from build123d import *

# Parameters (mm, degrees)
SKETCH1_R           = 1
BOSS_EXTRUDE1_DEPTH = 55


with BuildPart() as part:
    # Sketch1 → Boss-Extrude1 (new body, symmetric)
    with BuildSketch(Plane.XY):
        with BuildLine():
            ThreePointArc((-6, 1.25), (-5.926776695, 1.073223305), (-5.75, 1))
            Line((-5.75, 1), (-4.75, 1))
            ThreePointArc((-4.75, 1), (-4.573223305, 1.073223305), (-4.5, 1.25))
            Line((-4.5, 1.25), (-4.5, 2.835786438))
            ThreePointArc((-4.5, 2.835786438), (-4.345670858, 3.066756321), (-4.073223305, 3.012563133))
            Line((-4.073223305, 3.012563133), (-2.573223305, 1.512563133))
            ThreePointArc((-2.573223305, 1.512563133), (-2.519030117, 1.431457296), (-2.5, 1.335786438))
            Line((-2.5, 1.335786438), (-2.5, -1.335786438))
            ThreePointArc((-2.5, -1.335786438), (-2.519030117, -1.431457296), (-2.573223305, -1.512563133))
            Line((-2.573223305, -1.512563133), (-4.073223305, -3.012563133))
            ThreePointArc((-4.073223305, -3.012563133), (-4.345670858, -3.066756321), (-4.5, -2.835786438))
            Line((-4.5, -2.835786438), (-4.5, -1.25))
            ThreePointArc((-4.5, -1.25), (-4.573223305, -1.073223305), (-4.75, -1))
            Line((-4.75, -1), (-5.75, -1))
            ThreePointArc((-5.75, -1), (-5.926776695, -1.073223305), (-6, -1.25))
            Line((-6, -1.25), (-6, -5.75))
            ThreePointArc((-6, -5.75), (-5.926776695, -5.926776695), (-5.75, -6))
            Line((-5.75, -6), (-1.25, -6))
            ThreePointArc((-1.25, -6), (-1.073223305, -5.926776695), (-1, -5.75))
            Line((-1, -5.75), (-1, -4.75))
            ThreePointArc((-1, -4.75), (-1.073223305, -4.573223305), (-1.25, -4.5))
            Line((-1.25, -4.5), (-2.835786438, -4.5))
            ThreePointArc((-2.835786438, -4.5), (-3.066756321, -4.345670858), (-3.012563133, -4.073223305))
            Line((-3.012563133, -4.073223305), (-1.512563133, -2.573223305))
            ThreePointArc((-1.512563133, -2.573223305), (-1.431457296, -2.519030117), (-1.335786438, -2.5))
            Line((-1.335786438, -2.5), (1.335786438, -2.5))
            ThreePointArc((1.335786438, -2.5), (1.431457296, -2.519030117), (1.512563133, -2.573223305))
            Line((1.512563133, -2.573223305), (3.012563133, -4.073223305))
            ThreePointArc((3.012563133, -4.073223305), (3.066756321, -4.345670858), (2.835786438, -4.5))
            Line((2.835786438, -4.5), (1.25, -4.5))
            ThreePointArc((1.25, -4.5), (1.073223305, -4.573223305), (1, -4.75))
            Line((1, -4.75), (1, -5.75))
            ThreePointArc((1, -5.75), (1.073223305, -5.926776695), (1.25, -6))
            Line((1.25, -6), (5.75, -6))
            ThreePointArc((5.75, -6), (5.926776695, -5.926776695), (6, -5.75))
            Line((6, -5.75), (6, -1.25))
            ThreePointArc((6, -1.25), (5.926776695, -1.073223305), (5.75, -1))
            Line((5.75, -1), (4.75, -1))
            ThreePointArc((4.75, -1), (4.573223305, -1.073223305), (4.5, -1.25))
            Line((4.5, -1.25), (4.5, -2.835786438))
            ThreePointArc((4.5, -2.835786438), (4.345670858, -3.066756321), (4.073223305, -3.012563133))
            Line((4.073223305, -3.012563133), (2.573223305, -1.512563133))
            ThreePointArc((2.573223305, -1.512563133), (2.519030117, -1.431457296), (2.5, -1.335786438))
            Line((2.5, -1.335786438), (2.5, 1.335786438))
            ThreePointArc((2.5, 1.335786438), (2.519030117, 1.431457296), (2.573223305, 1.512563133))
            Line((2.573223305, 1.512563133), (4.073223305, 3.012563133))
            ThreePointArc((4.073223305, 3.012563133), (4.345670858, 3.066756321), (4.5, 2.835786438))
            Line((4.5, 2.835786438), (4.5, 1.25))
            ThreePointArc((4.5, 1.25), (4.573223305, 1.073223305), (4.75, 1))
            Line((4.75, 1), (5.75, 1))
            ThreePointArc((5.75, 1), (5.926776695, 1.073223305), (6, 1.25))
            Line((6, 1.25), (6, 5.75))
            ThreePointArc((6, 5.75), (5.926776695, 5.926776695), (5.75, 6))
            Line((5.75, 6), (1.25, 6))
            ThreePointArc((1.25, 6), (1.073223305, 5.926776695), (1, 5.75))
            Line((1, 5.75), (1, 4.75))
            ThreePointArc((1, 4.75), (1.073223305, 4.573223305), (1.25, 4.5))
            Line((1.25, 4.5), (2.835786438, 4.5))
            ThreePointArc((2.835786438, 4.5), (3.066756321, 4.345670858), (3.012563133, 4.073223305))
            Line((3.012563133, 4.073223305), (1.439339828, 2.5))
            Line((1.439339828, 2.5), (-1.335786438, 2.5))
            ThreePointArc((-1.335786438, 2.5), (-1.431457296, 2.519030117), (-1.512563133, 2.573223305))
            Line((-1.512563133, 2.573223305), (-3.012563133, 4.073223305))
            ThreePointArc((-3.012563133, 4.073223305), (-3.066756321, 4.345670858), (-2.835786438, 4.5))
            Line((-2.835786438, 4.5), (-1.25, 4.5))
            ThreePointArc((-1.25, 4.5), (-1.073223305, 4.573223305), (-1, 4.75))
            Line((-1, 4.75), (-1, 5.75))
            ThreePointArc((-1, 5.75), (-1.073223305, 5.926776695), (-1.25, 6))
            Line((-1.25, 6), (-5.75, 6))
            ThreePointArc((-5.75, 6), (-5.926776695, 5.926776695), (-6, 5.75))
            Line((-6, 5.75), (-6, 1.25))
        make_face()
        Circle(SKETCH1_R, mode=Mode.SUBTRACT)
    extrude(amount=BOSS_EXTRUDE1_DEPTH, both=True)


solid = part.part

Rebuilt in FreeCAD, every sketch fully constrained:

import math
import FreeCAD as App
import Part
import Sketcher
from FreeCAD import Vector

doc = App.newDocument("Part")
body = doc.addObject("PartDesign::Body", "Body")

# Sketch on XY plane
sketch1 = body.newObject("Sketcher::SketchObject", "Sketch")
sketch1.AttachmentSupport = (doc.getObject("XY_Plane"), [""])
sketch1.MapMode = "FlatFace"
sketch1.addGeometry(Part.ArcOfCircle(Part.Circle(Vector(-5.75, 1.25, 0), Vector(0, 0, 1), 0.25), math.radians(-180), math.radians(-90)), False)
sketch1.addGeometry(Part.LineSegment(Vector(-5.75, 1, 0), Vector(-4.75, 1, 0)), False)
sketch1.addGeometry(Part.ArcOfCircle(Part.Circle(Vector(-4.75, 1.25, 0), Vector(0, 0, 1), 0.25), math.radians(-90), math.radians(0)), False)
sketch1.addGeometry(Part.LineSegment(Vector(-4.5, 1.25, 0), Vector(-4.5, 2.84, 0)), False)
sketch1.addGeometry(Part.ArcOfCircle(Part.Circle(Vector(-4.25, 2.84, 0), Vector(0, 0, 1), 0.25), math.radians(45), math.radians(180)), False)
sketch1.addGeometry(Part.LineSegment(Vector(-4.07, 3.01, 0), Vector(-2.57, 1.51, 0)), False)
sketch1.addGeometry(Part.ArcOfCircle(Part.Circle(Vector(-2.75, 1.34, 0), Vector(0, 0, 1), 0.25), math.radians(0), math.radians(45)), False)
sketch1.addGeometry(Part.LineSegment(Vector(-2.5, 1.34, 0), Vector(-2.5, -1.34, 0)), False)
sketch1.addGeometry(Part.ArcOfCircle(Part.Circle(Vector(-2.75, -1.34, 0), Vector(0, 0, 1), 0.25), math.radians(-45), math.radians(0)), False)
sketch1.addGeometry(Part.LineSegment(Vector(-2.57, -1.51, 0), Vector(-4.07, -3.01, 0)), False)
sketch1.addGeometry(Part.ArcOfCircle(Part.Circle(Vector(-4.25, -2.84, 0), Vector(0, 0, 1), 0.25), math.radians(180), math.radians(315)), False)
sketch1.addGeometry(Part.LineSegment(Vector(-4.5, -2.84, 0), Vector(-4.5, -1.25, 0)), False)
sketch1.addGeometry(Part.ArcOfCircle(Part.Circle(Vector(-4.75, -1.25, 0), Vector(0, 0, 1), 0.25), math.radians(0), math.radians(90)), False)
sketch1.addGeometry(Part.LineSegment(Vector(-4.75, -1, 0), Vector(-5.75, -1, 0)), False)
sketch1.addGeometry(Part.ArcOfCircle(Part.Circle(Vector(-5.75, -1.25, 0), Vector(0, 0, 1), 0.25), math.radians(90), math.radians(180)), False)
sketch1.addGeometry(Part.LineSegment(Vector(-6, -1.25, 0), Vector(-6, -5.75, 0)), False)
sketch1.addGeometry(Part.ArcOfCircle(Part.Circle(Vector(-5.75, -5.75, 0), Vector(0, 0, 1), 0.25), math.radians(-180), math.radians(-90)), False)
sketch1.addGeometry(Part.LineSegment(Vector(-5.75, -6, 0), Vector(-1.25, -6, 0)), False)
sketch1.addGeometry(Part.ArcOfCircle(Part.Circle(Vector(-1.25, -5.75, 0), Vector(0, 0, 1), 0.25), math.radians(-90), math.radians(0)), False)
sketch1.addGeometry(Part.LineSegment(Vector(-1, -5.75, 0), Vector(-1, -4.75, 0)), False)
sketch1.addGeometry(Part.ArcOfCircle(Part.Circle(Vector(-1.25, -4.75, 0), Vector(0, 0, 1), 0.25), math.radians(0), math.radians(90)), False)
sketch1.addGeometry(Part.LineSegment(Vector(-1.25, -4.5, 0), Vector(-2.84, -4.5, 0)), False)
sketch1.addGeometry(Part.ArcOfCircle(Part.Circle(Vector(-2.84, -4.25, 0), Vector(0, 0, 1), 0.25), math.radians(135), math.radians(270)), False)
sketch1.addGeometry(Part.LineSegment(Vector(-3.01, -4.07, 0), Vector(-1.51, -2.57, 0)), False)
sketch1.addGeometry(Part.ArcOfCircle(Part.Circle(Vector(-1.34, -2.75, 0), Vector(0, 0, 1), 0.25), math.radians(90), math.radians(135)), False)
sketch1.addGeometry(Part.LineSegment(Vector(-1.34, -2.5, 0), Vector(1.34, -2.5, 0)), False)
sketch1.addGeometry(Part.ArcOfCircle(Part.Circle(Vector(1.34, -2.75, 0), Vector(0, 0, 1), 0.25), math.radians(45), math.radians(90)), False)
sketch1.addGeometry(Part.LineSegment(Vector(1.51, -2.57, 0), Vector(3.01, -4.07, 0)), False)
sketch1.addGeometry(Part.ArcOfCircle(Part.Circle(Vector(2.84, -4.25, 0), Vector(0, 0, 1), 0.25), math.radians(-90), math.radians(45)), False)
sketch1.addGeometry(Part.LineSegment(Vector(2.84, -4.5, 0), Vector(1.25, -4.5, 0)), False)
sketch1.addGeometry(Part.ArcOfCircle(Part.Circle(Vector(1.25, -4.75, 0), Vector(0, 0, 1), 0.25), math.radians(90), math.radians(180)), False)
sketch1.addGeometry(Part.LineSegment(Vector(1, -4.75, 0), Vector(1, -5.75, 0)), False)
sketch1.addGeometry(Part.ArcOfCircle(Part.Circle(Vector(1.25, -5.75, 0), Vector(0, 0, 1), 0.25), math.radians(-180), math.radians(-90)), False)
sketch1.addGeometry(Part.LineSegment(Vector(1.25, -6, 0), Vector(5.75, -6, 0)), False)
sketch1.addGeometry(Part.ArcOfCircle(Part.Circle(Vector(5.75, -5.75, 0), Vector(0, 0, 1), 0.25), math.radians(-90), math.radians(0)), False)
sketch1.addGeometry(Part.LineSegment(Vector(6, -5.75, 0), Vector(6, -1.25, 0)), False)
sketch1.addGeometry(Part.ArcOfCircle(Part.Circle(Vector(5.75, -1.25, 0), Vector(0, 0, 1), 0.25), math.radians(0), math.radians(90)), False)
sketch1.addGeometry(Part.LineSegment(Vector(5.75, -1, 0), Vector(4.75, -1, 0)), False)
sketch1.addGeometry(Part.ArcOfCircle(Part.Circle(Vector(4.75, -1.25, 0), Vector(0, 0, 1), 0.25), math.radians(90), math.radians(180)), False)
sketch1.addGeometry(Part.LineSegment(Vector(4.5, -1.25, 0), Vector(4.5, -2.84, 0)), False)
sketch1.addGeometry(Part.ArcOfCircle(Part.Circle(Vector(4.25, -2.84, 0), Vector(0, 0, 1), 0.25), math.radians(-135), math.radians(0)), False)
sketch1.addGeometry(Part.LineSegment(Vector(4.07, -3.01, 0), Vector(2.57, -1.51, 0)), False)
sketch1.addGeometry(Part.ArcOfCircle(Part.Circle(Vector(2.75, -1.34, 0), Vector(0, 0, 1), 0.25), math.radians(180), math.radians(225)), False)
sketch1.addGeometry(Part.LineSegment(Vector(2.5, -1.34, 0), Vector(2.5, 1.34, 0)), False)
sketch1.addGeometry(Part.ArcOfCircle(Part.Circle(Vector(2.75, 1.34, 0), Vector(0, 0, 1), 0.25), math.radians(135), math.radians(180)), False)
sketch1.addGeometry(Part.LineSegment(Vector(2.57, 1.51, 0), Vector(4.07, 3.01, 0)), False)
sketch1.addGeometry(Part.ArcOfCircle(Part.Circle(Vector(4.25, 2.84, 0), Vector(0, 0, 1), 0.25), math.radians(0), math.radians(135)), False)
sketch1.addGeometry(Part.LineSegment(Vector(4.5, 2.84, 0), Vector(4.5, 1.25, 0)), False)
sketch1.addGeometry(Part.ArcOfCircle(Part.Circle(Vector(4.75, 1.25, 0), Vector(0, 0, 1), 0.25), math.radians(-180), math.radians(-90)), False)
sketch1.addGeometry(Part.LineSegment(Vector(4.75, 1, 0), Vector(5.75, 1, 0)), False)
sketch1.addGeometry(Part.ArcOfCircle(Part.Circle(Vector(5.75, 1.25, 0), Vector(0, 0, 1), 0.25), math.radians(-90), math.radians(0)), False)
sketch1.addGeometry(Part.LineSegment(Vector(6, 1.25, 0), Vector(6, 5.75, 0)), False)
sketch1.addGeometry(Part.ArcOfCircle(Part.Circle(Vector(5.75, 5.75, 0), Vector(0, 0, 1), 0.25), math.radians(0), math.radians(90)), False)
sketch1.addGeometry(Part.LineSegment(Vector(5.75, 6, 0), Vector(1.25, 6, 0)), False)
sketch1.addGeometry(Part.ArcOfCircle(Part.Circle(Vector(1.25, 5.75, 0), Vector(0, 0, 1), 0.25), math.radians(90), math.radians(180)), False)
sketch1.addGeometry(Part.LineSegment(Vector(1, 5.75, 0), Vector(1, 4.75, 0)), False)
sketch1.addGeometry(Part.ArcOfCircle(Part.Circle(Vector(1.25, 4.75, 0), Vector(0, 0, 1), 0.25), math.radians(-180), math.radians(-90)), False)
sketch1.addGeometry(Part.LineSegment(Vector(1.25, 4.5, 0), Vector(2.84, 4.5, 0)), False)
sketch1.addGeometry(Part.ArcOfCircle(Part.Circle(Vector(2.84, 4.25, 0), Vector(0, 0, 1), 0.25), math.radians(-45), math.radians(90)), False)
sketch1.addGeometry(Part.LineSegment(Vector(3.01, 4.07, 0), Vector(1.44, 2.5, 0)), False)
sketch1.addGeometry(Part.LineSegment(Vector(1.44, 2.5, 0), Vector(-1.34, 2.5, 0)), False)
sketch1.addGeometry(Part.ArcOfCircle(Part.Circle(Vector(-1.34, 2.75, 0), Vector(0, 0, 1), 0.25), math.radians(-135), math.radians(-90)), False)
sketch1.addGeometry(Part.LineSegment(Vector(-1.51, 2.57, 0), Vector(-3.01, 4.07, 0)), False)
sketch1.addGeometry(Part.ArcOfCircle(Part.Circle(Vector(-2.84, 4.25, 0), Vector(0, 0, 1), 0.25), math.radians(90), math.radians(225)), False)
sketch1.addGeometry(Part.LineSegment(Vector(-2.84, 4.5, 0), Vector(-1.25, 4.5, 0)), False)
sketch1.addGeometry(Part.ArcOfCircle(Part.Circle(Vector(-1.25, 4.75, 0), Vector(0, 0, 1), 0.25), math.radians(-90), math.radians(0)), False)
sketch1.addGeometry(Part.LineSegment(Vector(-1, 4.75, 0), Vector(-1, 5.75, 0)), False)
sketch1.addGeometry(Part.ArcOfCircle(Part.Circle(Vector(-1.25, 5.75, 0), Vector(0, 0, 1), 0.25), math.radians(0), math.radians(90)), False)
sketch1.addGeometry(Part.LineSegment(Vector(-1.25, 6, 0), Vector(-5.75, 6, 0)), False)
sketch1.addGeometry(Part.ArcOfCircle(Part.Circle(Vector(-5.75, 5.75, 0), Vector(0, 0, 1), 0.25), math.radians(90), math.radians(180)), False)
sketch1.addGeometry(Part.LineSegment(Vector(-6, 5.75, 0), Vector(-6, 1.25, 0)), False)
sketch1.addGeometry(Part.Circle(Vector(0, 0, 0), Vector(0, 0, 1), 1), False)
sketch1.addConstraint(Sketcher.Constraint("Tangent", 0, 2, 1, 1))
sketch1.addConstraint(Sketcher.Constraint("Tangent", 1, 2, 2, 1))
sketch1.addConstraint(Sketcher.Constraint("Tangent", 2, 2, 3, 1))
sketch1.addConstraint(Sketcher.Constraint("Tangent", 3, 2, 4, 2))
sketch1.addConstraint(Sketcher.Constraint("Tangent", 4, 1, 5, 1))
sketch1.addConstraint(Sketcher.Constraint("Tangent", 5, 2, 6, 2))
sketch1.addConstraint(Sketcher.Constraint("Tangent", 6, 1, 7, 1))
sketch1.addConstraint(Sketcher.Constraint("Tangent", 7, 2, 8, 2))
sketch1.addConstraint(Sketcher.Constraint("Tangent", 8, 1, 9, 1))
sketch1.addConstraint(Sketcher.Constraint("Tangent", 9, 2, 10, 2))
sketch1.addConstraint(Sketcher.Constraint("Tangent", 10, 1, 11, 1))
sketch1.addConstraint(Sketcher.Constraint("Tangent", 11, 2, 12, 1))
sketch1.addConstraint(Sketcher.Constraint("Tangent", 12, 2, 13, 1))
sketch1.addConstraint(Sketcher.Constraint("Tangent", 13, 2, 14, 1))
sketch1.addConstraint(Sketcher.Constraint("Tangent", 14, 2, 15, 1))
sketch1.addConstraint(Sketcher.Constraint("Tangent", 15, 2, 16, 1))
sketch1.addConstraint(Sketcher.Constraint("Tangent", 16, 2, 17, 1))
sketch1.addConstraint(Sketcher.Constraint("Tangent", 17, 2, 18, 1))
sketch1.addConstraint(Sketcher.Constraint("Tangent", 18, 2, 19, 1))
sketch1.addConstraint(Sketcher.Constraint("Tangent", 19, 2, 20, 1))
sketch1.addConstraint(Sketcher.Constraint("Tangent", 20, 2, 21, 1))
sketch1.addConstraint(Sketcher.Constraint("Tangent", 21, 2, 22, 2))
sketch1.addConstraint(Sketcher.Constraint("Tangent", 22, 1, 23, 1))
sketch1.addConstraint(Sketcher.Constraint("Tangent", 23, 2, 24, 2))
sketch1.addConstraint(Sketcher.Constraint("Tangent", 24, 1, 25, 1))
sketch1.addConstraint(Sketcher.Constraint("Tangent", 25, 2, 26, 2))
sketch1.addConstraint(Sketcher.Constraint("Tangent", 26, 1, 27, 1))
sketch1.addConstraint(Sketcher.Constraint("Tangent", 27, 2, 28, 2))
sketch1.addConstraint(Sketcher.Constraint("Tangent", 28, 1, 29, 1))
sketch1.addConstraint(Sketcher.Constraint("Tangent", 29, 2, 30, 1))
sketch1.addConstraint(Sketcher.Constraint("Tangent", 30, 2, 31, 1))
sketch1.addConstraint(Sketcher.Constraint("Tangent", 31, 2, 32, 1))
sketch1.addConstraint(Sketcher.Constraint("Tangent", 32, 2, 33, 1))
sketch1.addConstraint(Sketcher.Constraint("Tangent", 33, 2, 34, 1))
sketch1.addConstraint(Sketcher.Constraint("Tangent", 34, 2, 35, 1))
sketch1.addConstraint(Sketcher.Constraint("Tangent", 35, 2, 36, 1))
sketch1.addConstraint(Sketcher.Constraint("Tangent", 36, 2, 37, 1))
sketch1.addConstraint(Sketcher.Constraint("Tangent", 37, 2, 38, 1))
sketch1.addConstraint(Sketcher.Constraint("Tangent", 38, 2, 39, 1))
sketch1.addConstraint(Sketcher.Constraint("Tangent", 39, 2, 40, 2))
sketch1.addConstraint(Sketcher.Constraint("Tangent", 40, 1, 41, 1))
sketch1.addConstraint(Sketcher.Constraint("Tangent", 41, 2, 42, 2))
sketch1.addConstraint(Sketcher.Constraint("Tangent", 42, 1, 43, 1))
sketch1.addConstraint(Sketcher.Constraint("Tangent", 43, 2, 44, 2))
sketch1.addConstraint(Sketcher.Constraint("Tangent", 44, 1, 45, 1))
sketch1.addConstraint(Sketcher.Constraint("Tangent", 45, 2, 46, 2))
sketch1.addConstraint(Sketcher.Constraint("Tangent", 46, 1, 47, 1))
sketch1.addConstraint(Sketcher.Constraint("Tangent", 47, 2, 48, 1))
sketch1.addConstraint(Sketcher.Constraint("Tangent", 48, 2, 49, 1))
sketch1.addConstraint(Sketcher.Constraint("Tangent", 49, 2, 50, 1))
sketch1.addConstraint(Sketcher.Constraint("Tangent", 50, 2, 51, 1))
sketch1.addConstraint(Sketcher.Constraint("Tangent", 51, 2, 52, 1))
sketch1.addConstraint(Sketcher.Constraint("Tangent", 52, 2, 53, 1))
sketch1.addConstraint(Sketcher.Constraint("Tangent", 53, 2, 54, 1))
sketch1.addConstraint(Sketcher.Constraint("Tangent", 54, 2, 55, 1))
sketch1.addConstraint(Sketcher.Constraint("Tangent", 55, 2, 56, 1))
sketch1.addConstraint(Sketcher.Constraint("Tangent", 56, 2, 57, 1))
sketch1.addConstraint(Sketcher.Constraint("Tangent", 57, 2, 58, 2))
sketch1.addConstraint(Sketcher.Constraint("Tangent", 58, 1, 59, 1))
sketch1.addConstraint(Sketcher.Constraint("Coincident", 59, 2, 60, 1))
sketch1.addConstraint(Sketcher.Constraint("Tangent", 60, 2, 61, 2))
sketch1.addConstraint(Sketcher.Constraint("Tangent", 61, 1, 62, 1))
sketch1.addConstraint(Sketcher.Constraint("Tangent", 62, 2, 63, 2))
sketch1.addConstraint(Sketcher.Constraint("Tangent", 63, 1, 64, 1))
sketch1.addConstraint(Sketcher.Constraint("Tangent", 64, 2, 65, 1))
sketch1.addConstraint(Sketcher.Constraint("Tangent", 65, 2, 66, 1))
sketch1.addConstraint(Sketcher.Constraint("Tangent", 66, 2, 67, 1))
sketch1.addConstraint(Sketcher.Constraint("Tangent", 67, 2, 68, 1))
sketch1.addConstraint(Sketcher.Constraint("Tangent", 68, 2, 69, 1))
sketch1.addConstraint(Sketcher.Constraint("Tangent", 69, 2, 70, 1))
sketch1.addConstraint(Sketcher.Constraint("Tangent", 70, 2, 0, 1))
sketch1.addConstraint(Sketcher.Constraint("Horizontal", 1))
sketch1.addConstraint(Sketcher.Constraint("Vertical", 3))
sketch1.addConstraint(Sketcher.Constraint("Vertical", 7))
sketch1.addConstraint(Sketcher.Constraint("Vertical", 11))
sketch1.addConstraint(Sketcher.Constraint("Horizontal", 13))
sketch1.addConstraint(Sketcher.Constraint("Vertical", 15))
sketch1.addConstraint(Sketcher.Constraint("Horizontal", 17))
sketch1.addConstraint(Sketcher.Constraint("Vertical", 19))
sketch1.addConstraint(Sketcher.Constraint("Horizontal", 21))
sketch1.addConstraint(Sketcher.Constraint("Horizontal", 25))
sketch1.addConstraint(Sketcher.Constraint("Horizontal", 29))
sketch1.addConstraint(Sketcher.Constraint("Vertical", 31))
sketch1.addConstraint(Sketcher.Constraint("Horizontal", 33))
sketch1.addConstraint(Sketcher.Constraint("Vertical", 35))
sketch1.addConstraint(Sketcher.Constraint("Horizontal", 37))
sketch1.addConstraint(Sketcher.Constraint("Vertical", 39))
sketch1.addConstraint(Sketcher.Constraint("Vertical", 43))
sketch1.addConstraint(Sketcher.Constraint("Vertical", 47))
sketch1.addConstraint(Sketcher.Constraint("Horizontal", 49))
sketch1.addConstraint(Sketcher.Constraint("Vertical", 51))
sketch1.addConstraint(Sketcher.Constraint("Horizontal", 53))
sketch1.addConstraint(Sketcher.Constraint("Vertical", 55))
sketch1.addConstraint(Sketcher.Constraint("Horizontal", 57))
sketch1.addConstraint(Sketcher.Constraint("Horizontal", 60))
sketch1.addConstraint(Sketcher.Constraint("Horizontal", 64))
sketch1.addConstraint(Sketcher.Constraint("Vertical", 66))
sketch1.addConstraint(Sketcher.Constraint("Horizontal", 68))
sketch1.addConstraint(Sketcher.Constraint("Vertical", 70))
sketch1.addConstraint(Sketcher.Constraint("Coincident", 71, 3, -1, 1))
sketch1.addConstraint(Sketcher.Constraint("Equal", 0, 2))
sketch1.addConstraint(Sketcher.Constraint("Equal", 2, 4))
sketch1.addConstraint(Sketcher.Constraint("Equal", 4, 6))
sketch1.addConstraint(Sketcher.Constraint("Equal", 6, 8))
sketch1.addConstraint(Sketcher.Constraint("Equal", 8, 10))
sketch1.addConstraint(Sketcher.Constraint("Equal", 10, 12))
sketch1.addConstraint(Sketcher.Constraint("Equal", 12, 14))
sketch1.addConstraint(Sketcher.Constraint("Equal", 14, 16))
sketch1.addConstraint(Sketcher.Constraint("Equal", 16, 18))
sketch1.addConstraint(Sketcher.Constraint("Equal", 18, 20))
sketch1.addConstraint(Sketcher.Constraint("Equal", 20, 22))
sketch1.addConstraint(Sketcher.Constraint("Equal", 22, 24))
sketch1.addConstraint(Sketcher.Constraint("Equal", 24, 26))
sketch1.addConstraint(Sketcher.Constraint("Equal", 26, 28))
sketch1.addConstraint(Sketcher.Constraint("Equal", 28, 30))
sketch1.addConstraint(Sketcher.Constraint("Equal", 30, 32))
sketch1.addConstraint(Sketcher.Constraint("Equal", 32, 34))
sketch1.addConstraint(Sketcher.Constraint("Equal", 34, 36))
sketch1.addConstraint(Sketcher.Constraint("Equal", 36, 38))
sketch1.addConstraint(Sketcher.Constraint("Equal", 38, 40))
sketch1.addConstraint(Sketcher.Constraint("Equal", 40, 42))
sketch1.addConstraint(Sketcher.Constraint("Equal", 42, 44))
sketch1.addConstraint(Sketcher.Constraint("Equal", 44, 46))
sketch1.addConstraint(Sketcher.Constraint("Equal", 46, 48))
sketch1.addConstraint(Sketcher.Constraint("Equal", 48, 50))
sketch1.addConstraint(Sketcher.Constraint("Equal", 50, 52))
sketch1.addConstraint(Sketcher.Constraint("Equal", 52, 54))
sketch1.addConstraint(Sketcher.Constraint("Equal", 54, 56))
sketch1.addConstraint(Sketcher.Constraint("Equal", 56, 58))
sketch1.addConstraint(Sketcher.Constraint("Equal", 58, 61))
sketch1.addConstraint(Sketcher.Constraint("Equal", 61, 63))
sketch1.addConstraint(Sketcher.Constraint("Equal", 63, 65))
sketch1.addConstraint(Sketcher.Constraint("Equal", 65, 67))
sketch1.addConstraint(Sketcher.Constraint("Equal", 67, 69))
sketch1.addConstraint(Sketcher.Constraint("Symmetric", 0, 3, 36, 3, -1, 1))
sketch1.addConstraint(Sketcher.Constraint("Symmetric", 4, 3, 40, 3, -1, 1))
sketch1.addConstraint(Sketcher.Constraint("Symmetric", 6, 3, 42, 3, -1, 1))
sketch1.addConstraint(Sketcher.Constraint("Symmetric", 10, 3, 46, 3, -1, 1))
sketch1.addConstraint(Sketcher.Constraint("Symmetric", 14, 3, 50, 3, -1, 1))
sketch1.addConstraint(Sketcher.Constraint("Symmetric", 18, 3, 54, 3, -1, 1))
sketch1.addConstraint(Sketcher.Constraint("Symmetric", 22, 3, 58, 3, -1, 1))
sketch1.addConstraint(Sketcher.Constraint("Symmetric", 26, 3, 61, 3, -1, 1))
sketch1.addConstraint(Sketcher.Constraint("Symmetric", 28, 3, 63, 3, -1, 1))
sketch1.addConstraint(Sketcher.Constraint("Symmetric", 32, 3, 67, 3, -1, 1))
sketch1.addConstraint(Sketcher.Constraint("Symmetric", 22, 3, 28, 3, -2))
sketch1.addConstraint(Sketcher.Constraint("Symmetric", 18, 3, 32, 3, -2))
sketch1.addConstraint(Sketcher.Constraint("Symmetric", 14, 3, 36, 3, -2))
sketch1.addConstraint(Sketcher.Constraint("Symmetric", 10, 3, 40, 3, -2))
sketch1.addConstraint(Sketcher.Constraint("Perpendicular", 5, 9))
sketch1.addConstraint(Sketcher.Constraint("Parallel", 9, 23))
sketch1.addConstraint(Sketcher.Constraint("Perpendicular", 23, 27))
sketch1.addConstraint(Sketcher.Constraint("Perpendicular", 41, 45))
sketch1.addConstraint(Sketcher.Constraint("Parallel", 45, 59))
sketch1.addConstraint(Sketcher.Constraint("Horizontal", 8, 3, 42, 3))
sketch1.addConstraint(Sketcher.Constraint("Equal", 64, 3))
sketch1.addConstraint(Sketcher.Constraint("Equal", 25, 7))
sketch1.addConstraint(Sketcher.Constraint("Equal", 68, 15))
sketch1.addConstraint(Sketcher.Constraint("Equal", 49, 19))
sketch1.addConstraint(Sketcher.Constraint("Equal", 9, 23))
sketch1.addConstraint(Sketcher.Constraint("Diameter", 71, 2.0))
sketch1.addConstraint(Sketcher.Constraint("DistanceX", 1, 1, 1, 2, 1.0))
sketch1.addConstraint(Sketcher.Constraint("Radius", 0, 0.25))
sketch1.addConstraint(Sketcher.Constraint("DistanceX", 17, 1, 17, 2, 4.5))
sketch1.addConstraint(Sketcher.Constraint("DistanceY", -1, 1, 0, 2, 1.0))
sketch1.addConstraint(Sketcher.Constraint("DistanceX", 6, 1, -1, 1, 2.5))
sketch1.addConstraint(Sketcher.Constraint("DistanceX", 21, 2, 21, 1, 1.585786))
pad1 = body.newObject("PartDesign::Pad", "Pad")
pad1.Profile = sketch1
pad1.Length = 110
pad1.Midplane = True

doc.recompute()
